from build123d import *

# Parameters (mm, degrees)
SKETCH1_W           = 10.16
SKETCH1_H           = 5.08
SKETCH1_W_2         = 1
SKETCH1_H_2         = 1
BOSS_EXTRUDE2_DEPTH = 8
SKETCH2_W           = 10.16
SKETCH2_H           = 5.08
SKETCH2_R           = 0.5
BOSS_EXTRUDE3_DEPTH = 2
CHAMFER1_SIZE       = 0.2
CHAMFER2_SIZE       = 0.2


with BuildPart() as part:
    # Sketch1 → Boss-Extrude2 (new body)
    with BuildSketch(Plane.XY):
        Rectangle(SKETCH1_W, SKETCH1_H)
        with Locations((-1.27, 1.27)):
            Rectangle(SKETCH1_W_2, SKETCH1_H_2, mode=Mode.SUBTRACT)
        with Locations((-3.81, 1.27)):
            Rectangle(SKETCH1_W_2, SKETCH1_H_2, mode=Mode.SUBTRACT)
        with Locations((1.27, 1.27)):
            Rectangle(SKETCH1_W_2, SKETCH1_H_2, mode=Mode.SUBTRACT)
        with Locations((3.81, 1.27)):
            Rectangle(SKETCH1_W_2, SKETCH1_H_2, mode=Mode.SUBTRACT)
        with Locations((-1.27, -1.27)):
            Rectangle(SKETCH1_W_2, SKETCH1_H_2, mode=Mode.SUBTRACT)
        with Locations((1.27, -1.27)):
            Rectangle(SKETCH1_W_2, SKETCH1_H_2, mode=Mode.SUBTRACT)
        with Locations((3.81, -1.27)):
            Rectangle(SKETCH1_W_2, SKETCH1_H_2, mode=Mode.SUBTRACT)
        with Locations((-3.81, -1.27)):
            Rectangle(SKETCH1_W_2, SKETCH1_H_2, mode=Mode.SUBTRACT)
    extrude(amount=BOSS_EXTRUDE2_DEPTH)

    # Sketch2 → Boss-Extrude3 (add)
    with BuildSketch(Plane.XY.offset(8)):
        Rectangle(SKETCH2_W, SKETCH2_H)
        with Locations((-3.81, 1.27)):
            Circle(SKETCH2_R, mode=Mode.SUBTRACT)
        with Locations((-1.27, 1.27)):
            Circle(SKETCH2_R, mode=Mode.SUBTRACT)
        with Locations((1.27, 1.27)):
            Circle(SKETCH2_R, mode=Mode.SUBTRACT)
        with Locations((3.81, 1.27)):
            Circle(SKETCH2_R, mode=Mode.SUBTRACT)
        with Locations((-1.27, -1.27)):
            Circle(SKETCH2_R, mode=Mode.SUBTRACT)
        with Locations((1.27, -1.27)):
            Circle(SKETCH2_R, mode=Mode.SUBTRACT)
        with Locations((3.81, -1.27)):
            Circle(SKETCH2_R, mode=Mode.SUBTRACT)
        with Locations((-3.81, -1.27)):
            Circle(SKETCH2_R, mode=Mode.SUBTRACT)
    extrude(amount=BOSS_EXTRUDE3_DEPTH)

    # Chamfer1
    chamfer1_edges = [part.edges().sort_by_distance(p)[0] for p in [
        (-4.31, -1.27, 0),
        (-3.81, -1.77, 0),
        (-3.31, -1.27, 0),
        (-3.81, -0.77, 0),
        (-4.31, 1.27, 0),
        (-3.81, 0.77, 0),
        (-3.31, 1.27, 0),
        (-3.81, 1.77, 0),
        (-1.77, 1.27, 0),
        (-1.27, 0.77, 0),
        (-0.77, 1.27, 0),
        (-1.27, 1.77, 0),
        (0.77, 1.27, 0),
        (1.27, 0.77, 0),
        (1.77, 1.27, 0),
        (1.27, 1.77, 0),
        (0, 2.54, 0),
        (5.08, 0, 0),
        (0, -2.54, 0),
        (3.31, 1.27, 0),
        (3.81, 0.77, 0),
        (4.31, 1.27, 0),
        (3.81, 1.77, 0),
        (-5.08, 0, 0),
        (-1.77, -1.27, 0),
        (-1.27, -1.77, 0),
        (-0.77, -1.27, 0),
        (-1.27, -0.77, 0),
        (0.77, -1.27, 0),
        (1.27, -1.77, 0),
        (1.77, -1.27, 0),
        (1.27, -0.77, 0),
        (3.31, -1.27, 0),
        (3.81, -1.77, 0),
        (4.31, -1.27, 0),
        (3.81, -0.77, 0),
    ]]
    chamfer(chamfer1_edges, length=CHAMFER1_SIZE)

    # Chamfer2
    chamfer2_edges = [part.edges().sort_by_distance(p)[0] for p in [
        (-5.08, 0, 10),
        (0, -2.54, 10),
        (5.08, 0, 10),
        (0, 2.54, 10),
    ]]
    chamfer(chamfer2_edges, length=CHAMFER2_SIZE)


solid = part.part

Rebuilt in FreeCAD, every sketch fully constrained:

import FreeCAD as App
import Part
import Sketcher

V = App.Vector
Q = App.Units.Quantity


def edges_at(feature, points):
    """Names of the edges that pass closest to the given points."""
    edges = feature.Shape.Edges
    near = lambda p: min(range(len(edges)), key=lambda i: edges[i].distToShape(Part.Vertex(*p))[0])
    return sorted({f"Edge{near(p) + 1}" for p in points})

doc = App.newDocument("Part")
body = doc.addObject("PartDesign::Body", "Body")

sketch1 = body.newObject("Sketcher::SketchObject", "Sketch")
sketch1.AttachmentSupport = (doc.getObject("XY_Plane"), [""])
sketch1.MapMode = "FlatFace"
sketch1.addGeometry([
    Part.LineSegment(V(-5.1, 2.5, 0), V(-5.1, -2.5, 0)),
    Part.LineSegment(V(-5.1, -2.5, 0), V(5.1, -2.5, 0)),
    Part.LineSegment(V(5.1, -2.5, 0), V(5.1, 2.5, 0)),
    Part.LineSegment(V(5.1, 2.5, 0), V(-5.1, 2.5, 0)),
    Part.LineSegment(V(-3.3, -1.8, 0), V(-4.3, -1.8, 0)),
    Part.LineSegment(V(-4.3, -1.8, 0), V(-4.3, -0.8, 0)),
    Part.LineSegment(V(-4.3, -0.8, 0), V(-3.3, -0.8, 0)),
    Part.LineSegment(V(-3.3, -0.8, 0), V(-3.3, -1.8, 0)),
    Part.LineSegment(V(-0.8, -1.8, 0), V(-1.8, -1.8, 0)),
    Part.LineSegment(V(-1.8, -1.8, 0), V(-1.8, -0.8, 0)),
    Part.LineSegment(V(-1.8, -0.8, 0), V(-0.8, -0.8, 0)),
    Part.LineSegment(V(-0.8, -0.8, 0), V(-0.8, -1.8, 0)),
    Part.LineSegment(V(1.8, -1.8, 0), V(0.8, -1.8, 0)),
    Part.LineSegment(V(0.8, -1.8, 0), V(0.8, -0.8, 0)),
    Part.LineSegment(V(0.8, -0.8, 0), V(1.8, -0.8, 0)),
    Part.LineSegment(V(1.8, -0.8, 0), V(1.8, -1.8, 0)),
    Part.LineSegment(V(4.3, -1.8, 0), V(3.3, -1.8, 0)),
    Part.LineSegment(V(3.3, -1.8, 0), V(3.3, -0.8, 0)),
    Part.LineSegment(V(3.3, -0.8, 0), V(4.3, -0.8, 0)),
    Part.LineSegment(V(4.3, -0.8, 0), V(4.3, -1.8, 0)),
    Part.LineSegment(V(-3.3, 0.8, 0), V(-4.3, 0.8, 0)),
    Part.LineSegment(V(-4.3, 0.8, 0), V(-4.3, 1.8, 0)),
    Part.LineSegment(V(-4.3, 1.8, 0), V(-3.3, 1.8, 0)),
    Part.LineSegment(V(-3.3, 1.8, 0), V(-3.3, 0.8, 0)),
    Part.LineSegment(V(-0.8, 0.8, 0), V(-1.8, 0.8, 0)),
    Part.LineSegment(V(-1.8, 0.8, 0), V(-1.8, 1.8, 0)),
    Part.LineSegment(V(-1.8, 1.8, 0), V(-0.8, 1.8, 0)),
    Part.LineSegment(V(-0.8, 1.8, 0), V(-0.8, 0.8, 0)),
    Part.LineSegment(V(1.8, 0.8, 0), V(0.8, 0.8, 0)),
    Part.LineSegment(V(0.8, 0.8, 0), V(0.8, 1.8, 0)),
    Part.LineSegment(V(0.8, 1.8, 0), V(1.8, 1.8, 0)),
    Part.LineSegment(V(1.8, 1.8, 0), V(1.8, 0.8, 0)),
    Part.LineSegment(V(4.3, 0.8, 0), V(3.3, 0.8, 0)),
    Part.LineSegment(V(3.3, 0.8, 0), V(3.3, 1.8, 0)),
    Part.LineSegment(V(3.3, 1.8, 0), V(4.3, 1.8, 0)),
    Part.LineSegment(V(4.3, 1.8, 0), V(4.3, 0.8, 0)),
], False)
sketch1.addConstraint([
    Sketcher.Constraint("Coincident", 0, 2, 1, 1),
    Sketcher.Constraint("Coincident", 1, 2, 2, 1),
    Sketcher.Constraint("Coincident", 2, 2, 3, 1),
    Sketcher.Constraint("Coincident", 3, 2, 0, 1),
    Sketcher.Constraint("Coincident", 4, 2, 5, 1),
    Sketcher.Constraint("Coincident", 5, 2, 6, 1),
    Sketcher.Constraint("Coincident", 6, 2, 7, 1),
    Sketcher.Constraint("Coincident", 7, 2, 4, 1),
    Sketcher.Constraint("Coincident", 8, 2, 9, 1),
    Sketcher.Constraint("Coincident", 9, 2, 10, 1),
    Sketcher.Constraint("Coincident", 10, 2, 11, 1),
    Sketcher.Constraint("Coincident", 11, 2, 8, 1),
    Sketcher.Constraint("Coincident", 12, 2, 13, 1),
    Sketcher.Constraint("Coincident", 13, 2, 14, 1),
    Sketcher.Constraint("Coincident", 14, 2, 15, 1),
    Sketcher.Constraint("Coincident", 15, 2, 12, 1),
    Sketcher.Constraint("Coincident", 16, 2, 17, 1),
    Sketcher.Constraint("Coincident", 17, 2, 18, 1),
    Sketcher.Constraint("Coincident", 18, 2, 19, 1),
    Sketcher.Constraint("Coincident", 19, 2, 16, 1),
    Sketcher.Constraint("Coincident", 20, 2, 21, 1),
    Sketcher.Constraint("Coincident", 21, 2, 22, 1),
    Sketcher.Constraint("Coincident", 22, 2, 23, 1),
    Sketcher.Constraint("Coincident", 23, 2, 20, 1),
    Sketcher.Constraint("Coincident", 24, 2, 25, 1),
    Sketcher.Constraint("Coincident", 25, 2, 26, 1),
    Sketcher.Constraint("Coincident", 26, 2, 27, 1),
    Sketcher.Constraint("Coincident", 27, 2, 24, 1),
    Sketcher.Constraint("Coincident", 28, 2, 29, 1),
    Sketcher.Constraint("Coincident", 29, 2, 30, 1),
    Sketcher.Constraint("Coincident", 30, 2, 31, 1),
    Sketcher.Constraint("Coincident", 31, 2, 28, 1),
    Sketcher.Constraint("Coincident", 32, 2, 33, 1),
    Sketcher.Constraint("Coincident", 33, 2, 34, 1),
    Sketcher.Constraint("Coincident", 34, 2, 35, 1),
    Sketcher.Constraint("Coincident", 35, 2, 32, 1),
    Sketcher.Constraint("Vertical", 0),
    Sketcher.Constraint("Horizontal", 1),
    Sketcher.Constraint("Vertical", 2),
    Sketcher.Constraint("Horizontal", 3),
    Sketcher.Constraint("Horizontal", 4),
    Sketcher.Constraint("Vertical", 5),
    Sketcher.Constraint("Horizontal", 6),
    Sketcher.Constraint("Vertical", 7),
    Sketcher.Constraint("Horizontal", 8),
    Sketcher.Constraint("Vertical", 9),
    Sketcher.Constraint("Horizontal", 10),
    Sketcher.Constraint("Vertical", 11),
    Sketcher.Constraint("Horizontal", 12),
    Sketcher.Constraint("Vertical", 13),
    Sketcher.Constraint("Horizontal", 14),
    Sketcher.Constraint("Vertical", 15),
    Sketcher.Constraint("Horizontal", 16),
    Sketcher.Constraint("Vertical", 17),
    Sketcher.Constraint("Horizontal", 18),
    Sketcher.Constraint("Vertical", 19),
    Sketcher.Constraint("Horizontal", 20),
    Sketcher.Constraint("Vertical", 21),
    Sketcher.Constraint("Horizontal", 22),
    Sketcher.Constraint("Vertical", 23),
    Sketcher.Constraint("Horizontal", 24),
    Sketcher.Constraint("Vertical", 25),
    Sketcher.Constraint("Horizontal", 26),
    Sketcher.Constraint("Vertical", 27),
    Sketcher.Constraint("Horizontal", 28),
    Sketcher.Constraint("Vertical", 29),
    Sketcher.Constraint("Horizontal", 30),
    Sketcher.Constraint("Vertical", 31),
    Sketcher.Constraint("Horizontal", 32),
    Sketcher.Constraint("Vertical", 33),
    Sketcher.Constraint("Horizontal", 34),
    Sketcher.Constraint("Vertical", 35),
    Sketcher.Constraint("Symmetric", 0, 2, 2, 2, -1, 1),
    Sketcher.Constraint("Symmetric", 18, 2, 20, 2, -1, 1),
    Sketcher.Constraint("Symmetric", 16, 2, 22, 2, -1, 1),
    Sketcher.Constraint("Symmetric", 14, 2, 24, 2, -1, 1),
    Sketcher.Constraint("Symmetric", 12, 2, 26, 2, -1, 1),
    Sketcher.Constraint("Symmetric", 10, 2, 28, 2, -1, 1),
    Sketcher.Constraint("Symmetric", 8, 2, 30, 2, -1, 1),
    Sketcher.Constraint("Symmetric", 6, 2, 32, 2, -1, 1),
    Sketcher.Constraint("Symmetric", 4, 2, 34, 2, -1, 1),
    Sketcher.Constraint("Symmetric", 11, 2, 12, 2, -2),
    Sketcher.Constraint("Symmetric", 9, 2, 14, 2, -2),
    Sketcher.Constraint("Symmetric", 7, 2, 16, 2, -2),
    Sketcher.Constraint("Symmetric", 5, 2, 18, 2, -2),
    Sketcher.Constraint("Horizontal", 7, 2, 8, 2),
    Sketcher.Constraint("Horizontal", 6, 2, 9, 2),
    Sketcher.Constraint("Equal", 6, 8),
    Sketcher.Constraint("Equal", 34, 5),
    Sketcher.Constraint("DistanceX", 4, 2, 4, 1, Q("1 mm")),
    Sketcher.Constraint("DistanceX", 1, 1, 1, 2, Q("10.16 mm")),
    Sketcher.Constraint("DistanceY", 0, 2, 0, 1, Q("5.08 mm")),
    Sketcher.Constraint("DistanceX", 4, 2, -1, 1, Q("4.31 mm")),
    Sketcher.Constraint("DistanceY", 4, 2, -1, 1, Q("1.77 mm")),
    Sketcher.Constraint("DistanceX", 8, 2, -1, 1, Q("1.77 mm")),
])
pad1 = body.newObject("PartDesign::Pad", "Pad")
pad1.Profile = sketch1
pad1.Length = 8

sketch2 = body.newObject("Sketcher::SketchObject", "Sketch001")
sketch2.AttachmentSupport = (doc.getObject("XY_Plane"), [""])
sketch2.MapMode = "FlatFace"
sketch2.AttachmentOffset = App.Placement(V(0, 0, 8), App.Rotation())
sketch2.addGeometry([
    Part.LineSegment(V(-5.1, 2.5, 0), V(-5.1, -2.5, 0)),
    Part.LineSegment(V(-5.1, -2.5, 0), V(5.1, -2.5, 0)),
    Part.LineSegment(V(5.1, -2.5, 0), V(5.1, 2.5, 0)),
    Part.LineSegment(V(5.1, 2.5, 0), V(-5.1, 2.5, 0)),
    Part.Circle(V(-3.8, -1.3, 0), V(0, 0, 1), 0.5),
    Part.Circle(V(-1.3, -1.3, 0), V(0, 0, 1), 0.5),
    Part.Circle(V(1.3, -1.3, 0), V(0, 0, 1), 0.5),
    Part.Circle(V(3.8, -1.3, 0), V(0, 0, 1), 0.5),
    Part.Circle(V(-3.8, 1.3, 0), V(0, 0, 1), 0.5),
    Part.Circle(V(-1.3, 1.3, 0), V(0, 0, 1), 0.5),
    Part.Circle(V(1.3, 1.3, 0), V(0, 0, 1), 0.5),
    Part.Circle(V(3.8, 1.3, 0), V(0, 0, 1), 0.5),
], False)
sketch2.addConstraint([
    Sketcher.Constraint("Coincident", 0, 2, 1, 1),
    Sketcher.Constraint("Coincident", 1, 2, 2, 1),
    Sketcher.Constraint("Coincident", 2, 2, 3, 1),
    Sketcher.Constraint("Coincident", 3, 2, 0, 1),
    Sketcher.Constraint("Vertical", 0),
    Sketcher.Constraint("Horizontal", 1),
    Sketcher.Constraint("Vertical", 2),
    Sketcher.Constraint("Horizontal", 3),
    Sketcher.Constraint("Equal", 4, 5),
    Sketcher.Constraint("Equal", 5, 6),
    Sketcher.Constraint("Equal", 6, 7),
    Sketcher.Constraint("Equal", 7, 8),
    Sketcher.Constraint("Equal", 8, 9),
    Sketcher.Constraint("Equal", 9, 10),
    Sketcher.Constraint("Equal", 10, 11),
    Sketcher.Constraint("Symmetric", 7, 3, 8, 3, -1, 1),
    Sketcher.Constraint("Symmetric", 6, 3, 9, 3, -1, 1),
    Sketcher.Constraint("Symmetric", 5, 3, 10, 3, -1, 1),
    Sketcher.Constraint("Symmetric", 4, 3, 11, 3, -1, 1),
    Sketcher.Constraint("Symmetric", 0, 2, 2, 2, -1, 1),
    Sketcher.Constraint("Symmetric", 5, 3, 6, 3, -2),
    Sketcher.Constraint("Symmetric", 4, 3, 7, 3, -2),
    Sketcher.Constraint("Horizontal", 4, 3, 5, 3),
    Sketcher.Constraint("Diameter", 4, Q("1 mm")),
    Sketcher.Constraint("DistanceX", 1, 1, 1, 2, Q("10.16 mm")),
    Sketcher.Constraint("DistanceY", 0, 2, 0, 1, Q("5.08 mm")),
    Sketcher.Constraint("DistanceX", 4, 3, -1, 1, Q("3.81 mm")),
    Sketcher.Constraint("DistanceY", 4, 3, -1, 1, Q("1.27 mm")),
    Sketcher.Constraint("DistanceX", 5, 3, -1, 1, Q("1.27 mm")),
])
pad2 = body.newObject("PartDesign::Pad", "Pad001")
pad2.Profile = sketch2
pad2.Length = 2
doc.recompute()

chamfer = body.newObject("PartDesign::Chamfer", "Chamfer")
chamfer.Base = (pad2, edges_at(pad2, [
    (-4.31, -1.27, 0),
    (-3.81, -1.77, 0),
    (-3.31, -1.27, 0),
    (-3.81, -0.77, 0),
    (-4.31, 1.27, 0),
    (-3.81, 0.77, 0),
    (-3.31, 1.27, 0),
    (-3.81, 1.77, 0),
    (-1.77, 1.27, 0),
    (-1.27, 0.77, 0),
    (-0.77, 1.27, 0),
    (-1.27, 1.77, 0),
    (0.77, 1.27, 0),
    (1.27, 0.77, 0),
    (1.77, 1.27, 0),
    (1.27, 1.77, 0),
    (0, 2.54, 0),
    (5.08, 0, 0),
    (0, -2.54, 0),
    (3.31, 1.27, 0),
    (3.81, 0.77, 0),
    (4.31, 1.27, 0),
    (3.81, 1.77, 0),
    (-5.08, 0, 0),
    (-1.77, -1.27, 0),
    (-1.27, -1.77, 0),
    (-0.77, -1.27, 0),
    (-1.27, -0.77, 0),
    (0.77, -1.27, 0),
    (1.27, -1.77, 0),
    (1.77, -1.27, 0),
    (1.27, -0.77, 0),
    (3.31, -1.27, 0),
    (3.81, -1.77, 0),
    (4.31, -1.27, 0),
    (3.81, -0.77, 0),
]))
chamfer.Size = 0.2
doc.recompute()

chamfer2 = body.newObject("PartDesign::Chamfer", "Chamfer001")
chamfer2.Base = (chamfer, edges_at(chamfer, [
    (-5.08, 0, 10),
    (0, -2.54, 10),
    (5.08, 0, 10),
    (0, 2.54, 10),
]))
chamfer2.Size = 0.2

doc.recompute()
